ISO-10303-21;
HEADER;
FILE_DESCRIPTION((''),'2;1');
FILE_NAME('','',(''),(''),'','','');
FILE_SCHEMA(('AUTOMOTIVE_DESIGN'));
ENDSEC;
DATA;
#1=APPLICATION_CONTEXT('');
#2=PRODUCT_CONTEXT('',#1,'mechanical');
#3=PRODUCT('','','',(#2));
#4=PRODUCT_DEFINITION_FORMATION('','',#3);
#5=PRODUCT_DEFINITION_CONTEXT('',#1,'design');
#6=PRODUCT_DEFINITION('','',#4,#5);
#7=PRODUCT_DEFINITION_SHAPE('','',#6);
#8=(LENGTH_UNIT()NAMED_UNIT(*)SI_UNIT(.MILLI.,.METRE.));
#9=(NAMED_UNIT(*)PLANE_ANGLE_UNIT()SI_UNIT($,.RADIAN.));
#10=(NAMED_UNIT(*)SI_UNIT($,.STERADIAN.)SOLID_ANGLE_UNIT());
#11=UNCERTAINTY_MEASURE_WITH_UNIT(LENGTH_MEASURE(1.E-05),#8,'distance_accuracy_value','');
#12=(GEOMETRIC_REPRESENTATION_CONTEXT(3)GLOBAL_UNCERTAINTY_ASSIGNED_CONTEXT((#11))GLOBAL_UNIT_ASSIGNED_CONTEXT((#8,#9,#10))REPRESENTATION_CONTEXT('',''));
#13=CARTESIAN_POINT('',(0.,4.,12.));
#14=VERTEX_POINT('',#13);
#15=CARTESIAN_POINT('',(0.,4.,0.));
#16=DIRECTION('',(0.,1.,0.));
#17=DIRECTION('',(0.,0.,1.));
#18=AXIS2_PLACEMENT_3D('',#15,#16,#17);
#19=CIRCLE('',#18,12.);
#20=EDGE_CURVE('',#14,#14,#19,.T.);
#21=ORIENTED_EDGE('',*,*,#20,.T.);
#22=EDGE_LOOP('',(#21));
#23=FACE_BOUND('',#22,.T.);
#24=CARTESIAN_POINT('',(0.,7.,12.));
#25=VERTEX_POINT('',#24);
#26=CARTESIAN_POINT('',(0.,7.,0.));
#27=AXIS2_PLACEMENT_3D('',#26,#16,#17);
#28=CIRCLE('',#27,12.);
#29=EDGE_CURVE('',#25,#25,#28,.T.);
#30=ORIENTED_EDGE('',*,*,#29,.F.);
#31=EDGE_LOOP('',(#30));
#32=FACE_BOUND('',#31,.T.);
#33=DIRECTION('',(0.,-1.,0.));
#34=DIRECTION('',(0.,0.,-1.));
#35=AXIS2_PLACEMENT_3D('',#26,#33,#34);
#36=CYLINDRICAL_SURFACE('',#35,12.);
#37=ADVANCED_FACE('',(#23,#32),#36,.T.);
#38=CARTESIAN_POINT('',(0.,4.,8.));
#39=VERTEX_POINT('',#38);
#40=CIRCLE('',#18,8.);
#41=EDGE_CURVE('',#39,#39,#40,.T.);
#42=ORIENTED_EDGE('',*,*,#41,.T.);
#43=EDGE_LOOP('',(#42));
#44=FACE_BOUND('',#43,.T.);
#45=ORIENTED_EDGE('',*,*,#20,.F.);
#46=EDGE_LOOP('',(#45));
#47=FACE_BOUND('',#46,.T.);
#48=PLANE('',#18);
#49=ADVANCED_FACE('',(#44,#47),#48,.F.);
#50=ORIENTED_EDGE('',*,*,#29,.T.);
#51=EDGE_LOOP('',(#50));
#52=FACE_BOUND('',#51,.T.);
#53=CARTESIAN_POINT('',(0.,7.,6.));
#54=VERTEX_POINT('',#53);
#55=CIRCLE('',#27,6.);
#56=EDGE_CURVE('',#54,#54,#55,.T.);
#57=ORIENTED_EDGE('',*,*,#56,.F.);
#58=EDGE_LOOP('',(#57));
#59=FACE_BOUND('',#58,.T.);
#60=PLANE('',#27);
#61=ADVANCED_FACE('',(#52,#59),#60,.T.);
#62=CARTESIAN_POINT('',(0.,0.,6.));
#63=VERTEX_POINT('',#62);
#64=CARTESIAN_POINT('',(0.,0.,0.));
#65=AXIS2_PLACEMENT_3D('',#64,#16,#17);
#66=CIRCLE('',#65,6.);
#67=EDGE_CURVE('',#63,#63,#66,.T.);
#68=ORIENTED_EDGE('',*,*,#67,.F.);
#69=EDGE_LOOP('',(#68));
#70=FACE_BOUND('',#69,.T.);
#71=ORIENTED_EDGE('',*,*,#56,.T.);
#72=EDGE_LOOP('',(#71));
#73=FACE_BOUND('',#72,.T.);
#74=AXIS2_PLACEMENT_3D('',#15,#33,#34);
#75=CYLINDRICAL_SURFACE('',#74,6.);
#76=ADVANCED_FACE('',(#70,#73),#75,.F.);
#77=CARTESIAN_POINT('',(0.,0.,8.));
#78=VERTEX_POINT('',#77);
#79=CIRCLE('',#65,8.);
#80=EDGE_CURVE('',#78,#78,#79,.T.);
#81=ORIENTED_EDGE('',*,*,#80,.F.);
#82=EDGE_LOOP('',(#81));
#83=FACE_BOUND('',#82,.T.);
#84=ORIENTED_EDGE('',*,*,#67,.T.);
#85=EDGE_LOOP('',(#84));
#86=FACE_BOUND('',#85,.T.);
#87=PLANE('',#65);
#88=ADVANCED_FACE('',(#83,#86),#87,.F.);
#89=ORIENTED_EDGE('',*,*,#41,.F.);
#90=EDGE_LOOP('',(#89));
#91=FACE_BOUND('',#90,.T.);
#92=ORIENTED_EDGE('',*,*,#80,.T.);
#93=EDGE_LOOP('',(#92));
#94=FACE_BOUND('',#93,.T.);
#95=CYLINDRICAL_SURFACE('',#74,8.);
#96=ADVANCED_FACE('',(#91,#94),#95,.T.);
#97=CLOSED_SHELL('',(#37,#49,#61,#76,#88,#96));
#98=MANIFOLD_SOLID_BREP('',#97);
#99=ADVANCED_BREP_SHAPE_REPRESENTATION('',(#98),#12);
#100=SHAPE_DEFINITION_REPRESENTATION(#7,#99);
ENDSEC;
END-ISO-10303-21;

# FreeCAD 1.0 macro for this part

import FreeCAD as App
import Part
import Sketcher

doc = App.newDocument("Part")
body = doc.addObject("PartDesign::Body", "Body")

# Sketch on XZ plane
sketch1 = body.newObject("Sketcher::SketchObject", "Sketch")
sketch1.AttachmentSupport = (doc.getObject("XZ_Plane"), [""])
sketch1.MapMode = "FlatFace"
sketch1.addGeometry([
    Part.Circle(App.Vector(0, 0, 0), App.Vector(0, 0, 1), 8),
    Part.Circle(App.Vector(0, 0, 0), App.Vector(0, 0, 1), 6),
], False)
sketch1.addConstraint([
    Sketcher.Constraint("Coincident", 0, 3, -1, 1),
    Sketcher.Constraint("Coincident", 1, 3, -1, 1),
    Sketcher.Constraint("Diameter", 0, 16.0),
    Sketcher.Constraint("Diameter", 1, 12.0),
])
pad1 = body.newObject("PartDesign::Pad", "Pad")
pad1.Profile = sketch1
pad1.Length = 4
pad1.Reversed = True

# Sketch on XZ plane
sketch2 = body.newObject("Sketcher::SketchObject", "Sketch001")
sketch2.AttachmentSupport = (doc.getObject("XZ_Plane"), [""])
sketch2.MapMode = "FlatFace"
sketch2.AttachmentOffset = App.Placement(App.Vector(0, 0, -4), App.Rotation())
sketch2.addGeometry([
    Part.Circle(App.Vector(0, 0, 0), App.Vector(0, 0, 1), 12),
    Part.Circle(App.Vector(0, 0, 0), App.Vector(0, 0, 1), 6),
], False)
sketch2.addConstraint([
    Sketcher.Constraint("Coincident", 0, 3, -1, 1),
    Sketcher.Constraint("Coincident", 1, 3, -1, 1),
    Sketcher.Constraint("Diameter", 0, 24.0),
    Sketcher.Constraint("Diameter", 1, 12.0),
])
pad2 = body.newObject("PartDesign::Pad", "Pad001")
pad2.Profile = sketch2
pad2.Length = 3
pad2.Reversed = True

doc.recompute()
